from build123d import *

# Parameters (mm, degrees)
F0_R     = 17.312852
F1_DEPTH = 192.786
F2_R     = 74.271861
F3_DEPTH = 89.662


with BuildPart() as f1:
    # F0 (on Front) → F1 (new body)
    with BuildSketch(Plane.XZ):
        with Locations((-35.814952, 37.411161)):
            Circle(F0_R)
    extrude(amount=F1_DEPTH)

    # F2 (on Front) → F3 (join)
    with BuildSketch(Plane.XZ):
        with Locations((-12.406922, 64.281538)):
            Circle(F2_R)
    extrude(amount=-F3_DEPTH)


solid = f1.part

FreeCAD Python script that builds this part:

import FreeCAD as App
import Part
import Sketcher
Q = App.Units.Quantity

doc = App.newDocument("Part")
body = doc.addObject("PartDesign::Body", "Body")

# Sketch on XZ plane
sketch1 = body.newObject("Sketcher::SketchObject", "Sketch")
sketch1.AttachmentSupport = (doc.getObject("XZ_Plane"), [""])
sketch1.MapMode = "FlatFace"
sketch1.addGeometry(Part.Circle(App.Vector(-35.814952, 37.411161, 0), App.Vector(0, 0, 1), 17.312852), False)
sketch1.addConstraint([
    Sketcher.Constraint("Diameter", 0, 34.625704),
    Sketcher.Constraint("DistanceX", 0, 3, -1, 1, 35.814952),
    Sketcher.Constraint("DistanceY", -1, 1, 0, 3, 37.411161),
])
pad1 = body.newObject("PartDesign::Pad", "Pad")
pad1.Profile = sketch1
pad1.Length = Q("7.59 in")

# Sketch on XZ plane
sketch2 = body.newObject("Sketcher::SketchObject", "Sketch001")
sketch2.AttachmentSupport = (doc.getObject("XZ_Plane"), [""])
sketch2.MapMode = "FlatFace"
sketch2.addGeometry(Part.Circle(App.Vector(-12.406922, 64.281538, 0), App.Vector(0, 0, 1), 74.271861), False)
sketch2.addConstraint([
    Sketcher.Constraint("Diameter", 0, 148.543722),
    Sketcher.Constraint("DistanceX", 0, 3, -1, 1, 12.406922),
    Sketcher.Constraint("DistanceY", -1, 1, 0, 3, 64.281538),
])
pad2 = body.newObject("PartDesign::Pad", "Pad001")
pad2.Profile = sketch2
pad2.Length = Q("3.53 in")
pad2.Reversed = True

doc.recompute()
